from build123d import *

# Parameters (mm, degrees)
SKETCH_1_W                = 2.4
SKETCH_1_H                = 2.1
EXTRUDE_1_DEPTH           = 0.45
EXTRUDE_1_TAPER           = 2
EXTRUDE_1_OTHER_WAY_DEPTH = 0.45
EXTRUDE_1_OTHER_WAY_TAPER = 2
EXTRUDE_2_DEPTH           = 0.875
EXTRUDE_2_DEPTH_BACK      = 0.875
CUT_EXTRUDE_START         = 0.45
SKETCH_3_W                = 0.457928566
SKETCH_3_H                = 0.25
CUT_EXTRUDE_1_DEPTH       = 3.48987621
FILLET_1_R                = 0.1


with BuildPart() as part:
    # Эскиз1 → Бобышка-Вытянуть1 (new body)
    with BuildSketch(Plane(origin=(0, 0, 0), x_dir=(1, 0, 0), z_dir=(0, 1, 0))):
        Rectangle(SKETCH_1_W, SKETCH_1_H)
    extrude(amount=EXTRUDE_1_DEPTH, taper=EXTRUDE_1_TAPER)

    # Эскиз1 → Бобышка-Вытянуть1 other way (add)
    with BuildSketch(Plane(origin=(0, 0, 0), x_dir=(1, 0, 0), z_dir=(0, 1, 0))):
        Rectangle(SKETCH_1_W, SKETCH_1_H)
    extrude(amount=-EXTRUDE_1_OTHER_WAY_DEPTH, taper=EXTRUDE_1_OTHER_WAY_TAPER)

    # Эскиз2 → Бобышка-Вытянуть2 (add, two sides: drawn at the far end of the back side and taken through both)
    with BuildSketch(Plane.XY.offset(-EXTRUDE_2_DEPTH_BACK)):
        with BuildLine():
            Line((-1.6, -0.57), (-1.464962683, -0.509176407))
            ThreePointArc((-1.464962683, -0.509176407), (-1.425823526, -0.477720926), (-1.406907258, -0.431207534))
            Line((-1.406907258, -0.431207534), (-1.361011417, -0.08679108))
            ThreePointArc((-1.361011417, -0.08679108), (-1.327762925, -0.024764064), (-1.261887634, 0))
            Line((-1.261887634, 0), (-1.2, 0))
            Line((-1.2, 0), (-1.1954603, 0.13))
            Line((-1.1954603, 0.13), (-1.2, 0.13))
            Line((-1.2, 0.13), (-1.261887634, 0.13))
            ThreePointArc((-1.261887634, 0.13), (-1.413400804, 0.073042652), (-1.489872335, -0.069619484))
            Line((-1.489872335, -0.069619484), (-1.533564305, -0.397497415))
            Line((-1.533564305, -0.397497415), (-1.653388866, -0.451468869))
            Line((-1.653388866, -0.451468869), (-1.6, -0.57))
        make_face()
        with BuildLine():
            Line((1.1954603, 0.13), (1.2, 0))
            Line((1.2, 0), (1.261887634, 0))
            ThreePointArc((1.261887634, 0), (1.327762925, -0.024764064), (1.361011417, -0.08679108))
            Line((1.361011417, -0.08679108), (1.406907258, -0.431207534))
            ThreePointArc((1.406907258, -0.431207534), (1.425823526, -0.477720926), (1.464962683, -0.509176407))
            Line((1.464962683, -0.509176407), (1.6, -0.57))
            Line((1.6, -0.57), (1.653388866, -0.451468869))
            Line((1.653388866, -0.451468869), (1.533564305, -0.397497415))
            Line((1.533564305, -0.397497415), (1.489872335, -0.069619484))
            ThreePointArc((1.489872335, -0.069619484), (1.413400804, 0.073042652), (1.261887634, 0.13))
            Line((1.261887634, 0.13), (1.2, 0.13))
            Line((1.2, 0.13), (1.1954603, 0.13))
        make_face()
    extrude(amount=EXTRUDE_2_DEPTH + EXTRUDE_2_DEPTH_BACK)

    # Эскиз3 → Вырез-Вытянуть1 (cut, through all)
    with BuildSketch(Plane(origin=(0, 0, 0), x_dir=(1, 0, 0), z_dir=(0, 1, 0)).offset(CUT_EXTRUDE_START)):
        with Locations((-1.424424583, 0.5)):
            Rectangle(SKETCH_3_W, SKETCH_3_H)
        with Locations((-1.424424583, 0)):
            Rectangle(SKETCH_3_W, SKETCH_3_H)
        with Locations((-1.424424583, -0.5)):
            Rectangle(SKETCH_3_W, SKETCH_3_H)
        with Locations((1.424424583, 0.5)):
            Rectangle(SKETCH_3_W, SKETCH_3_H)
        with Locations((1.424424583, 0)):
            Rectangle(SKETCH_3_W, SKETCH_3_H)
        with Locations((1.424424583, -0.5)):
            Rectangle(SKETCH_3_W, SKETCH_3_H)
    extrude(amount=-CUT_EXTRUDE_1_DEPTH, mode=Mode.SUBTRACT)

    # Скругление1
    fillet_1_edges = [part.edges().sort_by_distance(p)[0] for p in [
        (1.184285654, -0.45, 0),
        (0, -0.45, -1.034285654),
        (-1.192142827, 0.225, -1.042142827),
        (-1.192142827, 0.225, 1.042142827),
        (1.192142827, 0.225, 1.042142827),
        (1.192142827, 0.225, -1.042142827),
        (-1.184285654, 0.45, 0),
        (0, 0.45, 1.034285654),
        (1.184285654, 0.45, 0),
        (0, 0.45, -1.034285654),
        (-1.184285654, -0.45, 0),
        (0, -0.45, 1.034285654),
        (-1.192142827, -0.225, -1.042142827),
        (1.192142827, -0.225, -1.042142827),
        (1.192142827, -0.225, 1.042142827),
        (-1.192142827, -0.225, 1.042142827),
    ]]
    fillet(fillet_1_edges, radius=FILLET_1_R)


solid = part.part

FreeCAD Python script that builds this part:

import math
import FreeCAD as App
import Part
import Sketcher
from FreeCAD import Vector
Q = App.Units.Quantity


def edges_at(feature, points):
    """Names of the edges that pass closest to the given points."""
    edges = feature.Shape.Edges
    near = lambda p: min(range(len(edges)), key=lambda i: edges[i].distToShape(Part.Vertex(*p))[0])
    return sorted({f"Edge{near(p) + 1}" for p in points})


def add_polygon(sketch, points):
    """Adds a closed chain of lines whose ends are joined by coincident constraints."""
    first, n = sketch.GeometryCount, len(points)
    for a, b in zip(points, points[1:] + points[:1]):
        sketch.addGeometry(Part.LineSegment(App.Vector(*a, 0), App.Vector(*b, 0)), False)
    for i in range(n):
        sketch.addConstraint(Sketcher.Constraint("Coincident", first + i, 2, first + (i + 1) % n, 1))

doc = App.newDocument("Part")
params = doc.addObject("Spreadsheet::Sheet", "Params")
for row, (alias, value) in enumerate([
    ("sketch1_width", "2.4 mm"),
    ("sketch1_height", "2.1 mm"),
    ("pad1_length", "0.45 mm"),
    ("pad1_taper", "-2 deg"),
    ("sketch2_width", "2.4 mm"),
    ("sketch2_height", "2.1 mm"),
    ("pad2_length", "0.45 mm"),
    ("pad2_taper", "-2 deg"),
    ("sketch3_radius", "0.1 mm"),
    ("sketch3_radius2", "0.23 mm"),
    ("sketch3_length", "0.13 mm"),
    ("pad3_length", "0.875 mm"),
    ("pad3_length2", "0.875 mm"),
    ("sketch4_height", "0.25 mm"),
    ("fillet_radius", "0.1 mm"),
], start=1):
    params.set(f"A{row}", alias)
    params.set(f"B{row}", "=" + value)
    params.setAlias(f"B{row}", alias)

body = doc.addObject("PartDesign::Body", "Body")

# Sketch on XZ plane
sketch1 = body.newObject("Sketcher::SketchObject", "Sketch")
sketch1.AttachmentSupport = (doc.getObject("XZ_Plane"), [""])
sketch1.MapMode = "FlatFace"
add_polygon(sketch1, [(-1.2, -1.1), (-1.2, 1.1), (1.2, 1.1), (1.2, -1.1)])  # lines 0-3
sketch1.addConstraint([
    Sketcher.Constraint("Vertical", 0),
    Sketcher.Constraint("Horizontal", 1),
    Sketcher.Constraint("Vertical", 2),
    Sketcher.Constraint("Horizontal", 3),
    Sketcher.Constraint("Symmetric", 0, 2, 2, 2, -1, 1),
    Sketcher.Constraint("DistanceX", 1, 1, 1, 2, Q("2.4 mm")),
    Sketcher.Constraint("DistanceY", 0, 1, 0, 2, Q("2.1 mm")),
])
sketch1.setExpression("Constraints[9]", "Params.sketch1_width")
sketch1.setExpression("Constraints[10]", "Params.sketch1_height")
pad1 = body.newObject("PartDesign::Pad", "Pad")
pad1.Profile = sketch1
pad1.setExpression("Length", "Params.pad1_length")
pad1.Reversed = True
pad1.setExpression("TaperAngle", "Params.pad1_taper")

# Sketch on XZ plane
sketch2 = body.newObject("Sketcher::SketchObject", "Sketch001")
sketch2.AttachmentSupport = (doc.getObject("XZ_Plane"), [""])
sketch2.MapMode = "FlatFace"
add_polygon(sketch2, [(-1.2, -1.1), (-1.2, 1.1), (1.2, 1.1), (1.2, -1.1)])  # lines 0-3
sketch2.addConstraint([
    Sketcher.Constraint("Vertical", 0),
    Sketcher.Constraint("Horizontal", 1),
    Sketcher.Constraint("Vertical", 2),
    Sketcher.Constraint("Horizontal", 3),
    Sketcher.Constraint("Symmetric", 0, 2, 2, 2, -1, 1),
    Sketcher.Constraint("DistanceX", 1, 1, 1, 2, Q("2.4 mm")),
    Sketcher.Constraint("DistanceY", 0, 1, 0, 2, Q("2.1 mm")),
])
sketch2.setExpression("Constraints[9]", "Params.sketch2_width")
sketch2.setExpression("Constraints[10]", "Params.sketch2_height")
pad2 = body.newObject("PartDesign::Pad", "Pad001")
pad2.Profile = sketch2
pad2.setExpression("Length", "Params.pad2_length")
pad2.setExpression("TaperAngle", "Params.pad2_taper")

# Sketch on XY plane
sketch3 = body.newObject("Sketcher::SketchObject", "Sketch002")
sketch3.AttachmentSupport = (doc.getObject("XY_Plane"), [""])
sketch3.MapMode = "FlatFace"
sketch3.addGeometry([
    Part.LineSegment(Vector(-1.6, -0.57, 0), Vector(-1.46, -0.51, 0)),  # 0
    Part.ArcOfCircle(Part.Circle(Vector(-1.51, -0.42, 0), Vector(0, 0, 1), 0.1), math.radians(-66), math.radians(-8)),  # 1
    Part.LineSegment(Vector(-1.41, -0.43, 0), Vector(-1.36, -0.09, 0)),  # 2
    Part.ArcOfCircle(Part.Circle(Vector(-1.26, -0.1, 0), Vector(0, 0, 1), 0.1), math.radians(90), math.radians(172)),  # 3
    Part.LineSegment(Vector(-1.26, 0, 0), Vector(-1.2, 0, 0)),  # 4
    Part.LineSegment(Vector(-1.2, 0, 0), Vector(-1.2, 0.13, 0)),  # 5
    Part.LineSegment(Vector(-1.2, 0.13, 0), Vector(-1.26, 0.13, 0)),  # 6
    Part.ArcOfCircle(Part.Circle(Vector(-1.26, -0.1, 0), Vector(0, 0, 1), 0.23), math.radians(90), math.radians(172)),  # 7
    Part.LineSegment(Vector(-1.49, -0.07, 0), Vector(-1.53, -0.4, 0)),  # 8
    Part.LineSegment(Vector(-1.53, -0.4, 0), Vector(-1.65, -0.45, 0)),  # 9
    Part.LineSegment(Vector(-1.65, -0.45, 0), Vector(-1.6, -0.57, 0)),  # 10
    Part.LineSegment(Vector(1.2, 0.13, 0), Vector(1.2, 0, 0)),  # 11
    Part.LineSegment(Vector(1.2, 0, 0), Vector(1.26, 0, 0)),  # 12
    Part.ArcOfCircle(Part.Circle(Vector(1.26, -0.1, 0), Vector(0, 0, 1), 0.1), math.radians(8), math.radians(90)),  # 13
    Part.LineSegment(Vector(1.36, -0.09, 0), Vector(1.41, -0.43, 0)),  # 14
    Part.ArcOfCircle(Part.Circle(Vector(1.51, -0.42, 0), Vector(0, 0, 1), 0.1), math.radians(-172), math.radians(-114)),  # 15
    Part.LineSegment(Vector(1.46, -0.51, 0), Vector(1.6, -0.57, 0)),  # 16
    Part.LineSegment(Vector(1.6, -0.57, 0), Vector(1.65, -0.45, 0)),  # 17
    Part.LineSegment(Vector(1.65, -0.45, 0), Vector(1.53, -0.4, 0)),  # 18
    Part.LineSegment(Vector(1.53, -0.4, 0), Vector(1.49, -0.07, 0)),  # 19
    Part.ArcOfCircle(Part.Circle(Vector(1.26, -0.1, 0), Vector(0, 0, 1), 0.23), math.radians(8), math.radians(90)),  # 20
    Part.LineSegment(Vector(1.26, 0.13, 0), Vector(1.2, 0.13, 0)),  # 21
], False)
sketch3.addConstraint([
    Sketcher.Constraint("Tangent", 0, 2, 1, 1),
    Sketcher.Constraint("Tangent", 1, 2, 2, 1),
    Sketcher.Constraint("Tangent", 2, 2, 3, 2),
    Sketcher.Constraint("Tangent", 3, 1, 4, 1),
    Sketcher.Constraint("Coincident", 4, 2, 5, 1),
    Sketcher.Constraint("Coincident", 5, 2, 6, 1),
    Sketcher.Constraint("Tangent", 6, 2, 7, 1),
    Sketcher.Constraint("Tangent", 7, 2, 8, 1),
    Sketcher.Constraint("Coincident", 8, 2, 9, 1),
    Sketcher.Constraint("Coincident", 9, 2, 10, 1),
    Sketcher.Constraint("Coincident", 10, 2, 0, 1),
    Sketcher.Constraint("Coincident", 11, 2, 12, 1),
    Sketcher.Constraint("Tangent", 12, 2, 13, 2),
    Sketcher.Constraint("Tangent", 13, 1, 14, 1),
    Sketcher.Constraint("Tangent", 14, 2, 15, 1),
    Sketcher.Constraint("Tangent", 15, 2, 16, 1),
    Sketcher.Constraint("Coincident", 16, 2, 17, 1),
    Sketcher.Constraint("Coincident", 17, 2, 18, 1),
    Sketcher.Constraint("Coincident", 18, 2, 19, 1),
    Sketcher.Constraint("Tangent", 19, 2, 20, 1),
    Sketcher.Constraint("Tangent", 20, 2, 21, 1),
    Sketcher.Constraint("Coincident", 21, 2, 11, 1),
    Sketcher.Constraint("Horizontal", 4),
    Sketcher.Constraint("Horizontal", 6),
    Sketcher.Constraint("Horizontal", 12),
    Sketcher.Constraint("Horizontal", 21),
    Sketcher.Constraint("Coincident", 7, 3, 3, 3),
    Sketcher.Constraint("Coincident", 20, 3, 13, 3),
    Sketcher.Constraint("Equal", 1, 3),
    Sketcher.Constraint("Equal", 3, 13),
    Sketcher.Constraint("Equal", 13, 15),
    Sketcher.Constraint("Equal", 7, 20),
    Sketcher.Constraint("Symmetric", 4, 2, 11, 2, -1, 1),
    Sketcher.Constraint("Symmetric", 3, 3, 13, 3, -2),
    Sketcher.Constraint("Symmetric", 1, 3, 15, 3, -2),
    Sketcher.Constraint("Symmetric", 10, 2, 16, 2, -2),
    Sketcher.Constraint("Symmetric", 9, 2, 17, 2, -2),
    Sketcher.Constraint("Symmetric", 8, 2, 18, 2, -2),
    Sketcher.Constraint("Parallel", 2, 8),
    Sketcher.Constraint("Parallel", 0, 9),
    Sketcher.Constraint("Perpendicular", 9, 10),
    Sketcher.Constraint("Equal", 6, 21),
    Sketcher.Constraint("Radius", 1, Q("0.1 mm")),
    Sketcher.Constraint("Angle", 5, Q("88 deg")),
    Sketcher.Constraint("Radius", 7, Q("0.23 mm")),
    Sketcher.Constraint("DistanceX", 4, 2, -1, 1, Q("1.2 mm")),
    Sketcher.Constraint("DistanceX", 10, 2, -1, 1, Q("1.6 mm")),
    Sketcher.Constraint("Distance", 10, Q("0.13 mm")),
    Sketcher.Constraint("DistanceY", 10, 2, -1, 1, Q("0.57 mm")),
    Sketcher.Constraint("DistanceY", 1, 3, -1, 1, Q("0.417999 mm")),
    Sketcher.Constraint("DistanceY", 1, 3, 8, 2, Q("0.020501 mm")),
    Sketcher.Constraint("DistanceX", 8, 2, 0, 2, Q("0.068602 mm")),
])
sketch3.setExpression("Constraints[42]", "Params.sketch3_radius")
sketch3.setExpression("Constraints[44]", "Params.sketch3_radius2")
sketch3.setExpression("Constraints[47]", "Params.sketch3_length")
pad3 = body.newObject("PartDesign::Pad", "Pad002")
pad3.Profile = sketch3
pad3.Type = "TwoLengths"
pad3.setExpression("Length", "Params.pad3_length")
pad3.setExpression("Length2", "Params.pad3_length2")

# Sketch on XZ plane
sketch4 = body.newObject("Sketcher::SketchObject", "Sketch003")
sketch4.AttachmentSupport = (doc.getObject("XZ_Plane"), [""])
sketch4.MapMode = "FlatFace"
sketch4.AttachmentOffset = App.Placement(Vector(0, 0, -0.45), App.Rotation())
add_polygon(sketch4, [(-1.65, -0.62), (-1.65, -0.38), (-1.2, -0.38), (-1.2, -0.62)])  # lines 0-3
add_polygon(sketch4, [(-1.65, -0.12), (-1.65, 0.12), (-1.2, 0.12), (-1.2, -0.12)])  # lines 4-7
add_polygon(sketch4, [(-1.65, 0.38), (-1.65, 0.62), (-1.2, 0.62), (-1.2, 0.38)])  # lines 8-11
add_polygon(sketch4, [(1.2, -0.62), (1.2, -0.38), (1.65, -0.38), (1.65, -0.62)])  # lines 12-15
add_polygon(sketch4, [(1.2, -0.12), (1.2, 0.12), (1.65, 0.12), (1.65, -0.12)])  # lines 16-19
add_polygon(sketch4, [(1.2, 0.38), (1.2, 0.62), (1.65, 0.62), (1.65, 0.38)])  # lines 20-23
sketch4.addConstraint([
    Sketcher.Constraint("Vertical", 0),
    Sketcher.Constraint("Horizontal", 1),
    Sketcher.Constraint("Vertical", 2),
    Sketcher.Constraint("Horizontal", 3),
    Sketcher.Constraint("Vertical", 4),
    Sketcher.Constraint("Horizontal", 5),
    Sketcher.Constraint("Vertical", 6),
    Sketcher.Constraint("Horizontal", 7),
    Sketcher.Constraint("Vertical", 8),
    Sketcher.Constraint("Horizontal", 9),
    Sketcher.Constraint("Vertical", 10),
    Sketcher.Constraint("Horizontal", 11),
    Sketcher.Constraint("Vertical", 12),
    Sketcher.Constraint("Horizontal", 13),
    Sketcher.Constraint("Vertical", 14),
    Sketcher.Constraint("Horizontal", 15),
    Sketcher.Constraint("Vertical", 16),
    Sketcher.Constraint("Horizontal", 17),
    Sketcher.Constraint("Vertical", 18),
    Sketcher.Constraint("Horizontal", 19),
    Sketcher.Constraint("Vertical", 20),
    Sketcher.Constraint("Horizontal", 21),
    Sketcher.Constraint("Vertical", 22),
    Sketcher.Constraint("Horizontal", 23),
    Sketcher.Constraint("Symmetric", 10, 2, 12, 2, -1, 1),
    Sketcher.Constraint("Symmetric", 8, 2, 14, 2, -1, 1),
    Sketcher.Constraint("Symmetric", 6, 2, 16, 2, -1, 1),
    Sketcher.Constraint("Symmetric", 4, 2, 18, 2, -1, 1),
    Sketcher.Constraint("Symmetric", 2, 2, 20, 2, -1, 1),
    Sketcher.Constraint("Symmetric", 0, 2, 22, 2, -1, 1),
    Sketcher.Constraint("Symmetric", 1, 2, 12, 2, -2),
    Sketcher.Constraint("Symmetric", 3, 2, 14, 2, -2),
    Sketcher.Constraint("Horizontal", 5, 2, 16, 2),
    Sketcher.Constraint("Vertical", 3, 2, 4, 2),
    Sketcher.Constraint("Vertical", 2, 2, 5, 2),
    Sketcher.Constraint("Equal", 2, 4),
    Sketcher.Constraint("DistanceY", 0, 2, 8, 2, Q("1 mm")),
    Sketcher.Constraint("DistanceY", 0, 1, 0, 2, Q("0.25 mm")),
    Sketcher.Constraint("DistanceX", 1, 1, 1, 2, Q("0.457929 mm")),
    Sketcher.Constraint("DistanceX", 0, 2, -1, 1, Q("1.653389 mm")),
])
sketch4.setExpression("Constraints[61]", "Params.sketch4_height")
pocket1 = body.newObject("PartDesign::Pocket", "Pocket")
pocket1.Profile = sketch4
pocket1.Type = "ThroughAll"
pocket1.Reversed = True
doc.recompute()

fillet = body.newObject("PartDesign::Fillet", "Fillet")
fillet.Base = (pocket1, edges_at(pocket1, [
    (1.184, -0.45, 0),
    (0, -0.45, -1.034),
    (-1.192, 0.225, -1.042),
    (-1.192, 0.225, 1.042),
    (1.192, 0.225, 1.042),
    (1.192, 0.225, -1.042),
    (-1.184, 0.45, 0),
    (0, 0.45, 1.034),
    (1.184, 0.45, 0),
    (0, 0.45, -1.034),
    (-1.184, -0.45, 0),
    (0, -0.45, 1.034),
    (-1.192, -0.225, -1.042),
    (1.192, -0.225, -1.042),
    (1.192, -0.225, 1.042),
    (-1.192, -0.225, 1.042),
]))
fillet.setExpression("Radius", "Params.fillet_radius")

doc.recompute()
